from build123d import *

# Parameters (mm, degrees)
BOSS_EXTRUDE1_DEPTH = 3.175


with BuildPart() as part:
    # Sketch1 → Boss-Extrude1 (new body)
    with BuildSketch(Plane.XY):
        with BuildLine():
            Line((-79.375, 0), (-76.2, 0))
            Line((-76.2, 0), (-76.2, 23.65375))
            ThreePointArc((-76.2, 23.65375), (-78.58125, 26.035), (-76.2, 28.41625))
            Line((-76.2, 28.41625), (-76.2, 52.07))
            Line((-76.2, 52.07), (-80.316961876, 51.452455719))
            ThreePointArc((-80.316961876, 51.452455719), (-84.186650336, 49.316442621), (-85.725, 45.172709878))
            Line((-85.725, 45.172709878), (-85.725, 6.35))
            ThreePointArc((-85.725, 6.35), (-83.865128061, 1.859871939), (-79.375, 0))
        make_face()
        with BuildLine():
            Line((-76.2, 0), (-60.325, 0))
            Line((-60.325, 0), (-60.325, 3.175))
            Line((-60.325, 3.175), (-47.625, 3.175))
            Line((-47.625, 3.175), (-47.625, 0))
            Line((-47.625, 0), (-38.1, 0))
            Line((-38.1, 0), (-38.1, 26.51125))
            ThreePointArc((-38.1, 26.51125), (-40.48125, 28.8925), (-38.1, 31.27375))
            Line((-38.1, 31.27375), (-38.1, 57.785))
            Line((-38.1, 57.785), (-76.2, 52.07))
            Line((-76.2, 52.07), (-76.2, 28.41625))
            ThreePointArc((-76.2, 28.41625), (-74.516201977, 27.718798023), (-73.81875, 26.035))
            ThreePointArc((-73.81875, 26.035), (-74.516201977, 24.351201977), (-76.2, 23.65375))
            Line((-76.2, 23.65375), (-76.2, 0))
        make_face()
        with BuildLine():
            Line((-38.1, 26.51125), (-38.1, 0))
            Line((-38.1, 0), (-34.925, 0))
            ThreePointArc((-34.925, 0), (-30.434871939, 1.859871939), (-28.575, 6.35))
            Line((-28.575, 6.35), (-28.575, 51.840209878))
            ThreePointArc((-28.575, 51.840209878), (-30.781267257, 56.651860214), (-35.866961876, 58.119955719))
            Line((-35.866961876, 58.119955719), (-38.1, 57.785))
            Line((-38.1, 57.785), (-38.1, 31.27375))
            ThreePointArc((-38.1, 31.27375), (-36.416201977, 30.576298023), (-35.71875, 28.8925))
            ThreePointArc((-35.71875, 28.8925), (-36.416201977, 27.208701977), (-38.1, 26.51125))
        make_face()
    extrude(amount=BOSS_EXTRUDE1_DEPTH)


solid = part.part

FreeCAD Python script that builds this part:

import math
import FreeCAD as App
import Part
import Sketcher
Q = App.Units.Quantity

doc = App.newDocument("Part")
params = doc.addObject("Spreadsheet::Sheet", "Params")
for row, (alias, value) in enumerate([
    ("sketch1_radius", "0.25 in"),
    ("sketch1_width", "0.5 in"),
    ("sketch1_radius2", "0.09375 in"),
    ("sketch1_height", "0.125 in"),
    ("pad1_length", "0.125 in"),
], start=1):
    params.set(f"A{row}", alias)
    params.set(f"B{row}", "=" + value)
    params.setAlias(f"B{row}", alias)

body = doc.addObject("PartDesign::Body", "Body")

sketch1 = doc.addObject("Sketcher::SketchObject", "Sketch")
body.addObject(sketch1)
sketch1.AttachmentSupport = (doc.XY_Plane, [""])
sketch1.MapMode = "FlatFace"
sketch1.addGeometry(Part.LineSegment(App.Vector(-79.4, 0, 0), App.Vector(-60.3, 0, 0)), False)
sketch1.addGeometry(Part.LineSegment(App.Vector(-60.3, 0, 0), App.Vector(-60.3, 3.2, 0)), False)
sketch1.addGeometry(Part.LineSegment(App.Vector(-60.3, 3.2, 0), App.Vector(-47.6, 3.2, 0)), False)
sketch1.addGeometry(Part.LineSegment(App.Vector(-47.6, 3.2, 0), App.Vector(-47.6, 0, 0)), False)
sketch1.addGeometry(Part.LineSegment(App.Vector(-47.6, 0, 0), App.Vector(-34.9, 0, 0)), False)
sketch1.addGeometry(Part.ArcOfCircle(Part.Circle(App.Vector(-34.9, 6.3, 0), App.Vector(0, 0, 1), 6.3), math.radians(-90), math.radians(0)), False)
sketch1.addGeometry(Part.LineSegment(App.Vector(-28.6, 6.3, 0), App.Vector(-28.6, 51.8, 0)), False)
sketch1.addGeometry(Part.ArcOfCircle(Part.Circle(App.Vector(-34.9, 51.8, 0), App.Vector(0, 0, 1), 6.3), math.radians(0), math.radians(99)), False)
sketch1.addGeometry(Part.LineSegment(App.Vector(-35.9, 58.1, 0), App.Vector(-38.1, 57.8, 0)), False)
sketch1.addGeometry(Part.LineSegment(App.Vector(-38.1, 57.8, 0), App.Vector(-76.2, 52.1, 0)), False)
sketch1.addGeometry(Part.LineSegment(App.Vector(-76.2, 52.1, 0), App.Vector(-80.3, 51.5, 0)), False)
sketch1.addGeometry(Part.ArcOfCircle(Part.Circle(App.Vector(-79.4, 45.2, 0), App.Vector(0, 0, 1), 6.3), math.radians(99), math.radians(180)), False)
sketch1.addGeometry(Part.LineSegment(App.Vector(-85.7, 45.2, 0), App.Vector(-85.7, 6.3, 0)), False)
sketch1.addGeometry(Part.ArcOfCircle(Part.Circle(App.Vector(-79.4, 6.3, 0), App.Vector(0, 0, 1), 6.3), math.radians(180), math.radians(270)), False)
sketch1.addGeometry(Part.ArcOfCircle(Part.Circle(App.Vector(-38.1, 28.9, 0), App.Vector(0, 0, 1), 2.4), math.radians(90), math.radians(270)), False)
sketch1.addGeometry(Part.ArcOfCircle(Part.Circle(App.Vector(-38.1, 28.9, 0), App.Vector(0, 0, 1), 2.4), math.radians(0), math.radians(90)), False)
sketch1.addGeometry(Part.ArcOfCircle(Part.Circle(App.Vector(-38.1, 28.9, 0), App.Vector(0, 0, 1), 2.4), math.radians(-90), math.radians(0)), False)
sketch1.addGeometry(Part.ArcOfCircle(Part.Circle(App.Vector(-76.2, 26, 0), App.Vector(0, 0, 1), 2.4), math.radians(90), math.radians(270)), False)
sketch1.addGeometry(Part.ArcOfCircle(Part.Circle(App.Vector(-76.2, 26, 0), App.Vector(0, 0, 1), 2.4), math.radians(0), math.radians(90)), False)
sketch1.addGeometry(Part.ArcOfCircle(Part.Circle(App.Vector(-76.2, 26, 0), App.Vector(0, 0, 1), 2.4), math.radians(-90), math.radians(0)), False)
sketch1.addConstraint(Sketcher.Constraint("Coincident", 0, 2, 1, 1))
sketch1.addConstraint(Sketcher.Constraint("Coincident", 1, 2, 2, 1))
sketch1.addConstraint(Sketcher.Constraint("Coincident", 2, 2, 3, 1))
sketch1.addConstraint(Sketcher.Constraint("Coincident", 3, 2, 4, 1))
sketch1.addConstraint(Sketcher.Constraint("Tangent", 4, 2, 5, 1))
sketch1.addConstraint(Sketcher.Constraint("Tangent", 5, 2, 6, 1))
sketch1.addConstraint(Sketcher.Constraint("Tangent", 6, 2, 7, 1))
sketch1.addConstraint(Sketcher.Constraint("Tangent", 7, 2, 8, 1))
sketch1.addConstraint(Sketcher.Constraint("Coincident", 8, 2, 9, 1))
sketch1.addConstraint(Sketcher.Constraint("Coincident", 9, 2, 10, 1))
sketch1.addConstraint(Sketcher.Constraint("Tangent", 10, 2, 11, 1))
sketch1.addConstraint(Sketcher.Constraint("Tangent", 11, 2, 12, 1))
sketch1.addConstraint(Sketcher.Constraint("Tangent", 12, 2, 13, 1))
sketch1.addConstraint(Sketcher.Constraint("Tangent", 13, 2, 0, 1))
sketch1.addConstraint(Sketcher.Constraint("Tangent", 14, 1, 15, 2))
sketch1.addConstraint(Sketcher.Constraint("Tangent", 15, 1, 16, 2))
sketch1.addConstraint(Sketcher.Constraint("Tangent", 16, 1, 14, 2))
sketch1.addConstraint(Sketcher.Constraint("Tangent", 17, 1, 18, 2))
sketch1.addConstraint(Sketcher.Constraint("Tangent", 18, 1, 19, 2))
sketch1.addConstraint(Sketcher.Constraint("Tangent", 19, 1, 17, 2))
sketch1.addConstraint(Sketcher.Constraint("Horizontal", 0))
sketch1.addConstraint(Sketcher.Constraint("Vertical", 1))
sketch1.addConstraint(Sketcher.Constraint("Horizontal", 2))
sketch1.addConstraint(Sketcher.Constraint("Vertical", 3))
sketch1.addConstraint(Sketcher.Constraint("Horizontal", 4))
sketch1.addConstraint(Sketcher.Constraint("Vertical", 6))
sketch1.addConstraint(Sketcher.Constraint("Vertical", 12))
sketch1.addConstraint(Sketcher.Constraint("Equal", 5, 7))
sketch1.addConstraint(Sketcher.Constraint("Equal", 7, 11))
sketch1.addConstraint(Sketcher.Constraint("Equal", 11, 13))
sketch1.addConstraint(Sketcher.Constraint("Equal", 16, 17))
sketch1.addConstraint(Sketcher.Constraint("PointOnObject", 0, 2, -1))
sketch1.addConstraint(Sketcher.Constraint("PointOnObject", 3, 2, -1))
sketch1.addConstraint(Sketcher.Constraint("Parallel", 8, 9))
sketch1.addConstraint(Sketcher.Constraint("Parallel", 9, 10))
sketch1.addConstraint(Sketcher.Constraint("Horizontal", 16, 3, 15, 1))
sketch1.addConstraint(Sketcher.Constraint("Horizontal", 19, 3, 18, 1))
sketch1.addConstraint(Sketcher.Constraint("Vertical", 16, 3, 8, 2))
sketch1.addConstraint(Sketcher.Constraint("Vertical", 19, 3, 9, 2))
sketch1.addConstraint(Sketcher.Constraint("Vertical", 8, 2, 14, 1))
sketch1.addConstraint(Sketcher.Constraint("Vertical", 14, 1, 16, 1))
sketch1.addConstraint(Sketcher.Constraint("Vertical", 9, 2, 17, 1))
sketch1.addConstraint(Sketcher.Constraint("Vertical", 17, 1, 19, 1))
sketch1.addConstraint(Sketcher.Constraint("Equal", 2, 4))
sketch1.addConstraint(Sketcher.Constraint("Radius", 5, Q("0.25 in")))
sketch1.addConstraint(Sketcher.Constraint("DistanceX", 2, 1, 2, 2, Q("0.5 in")))
sketch1.addConstraint(Sketcher.Constraint("DistanceX", 17, 3, -1, 1, Q("3 in")))
sketch1.addConstraint(Sketcher.Constraint("Radius", 14, Q("0.09375 in")))
sketch1.addConstraint(Sketcher.Constraint("DistanceX", 12, 2, 1, 2, Q("1 in")))
sketch1.addConstraint(Sketcher.Constraint("DistanceX", 14, 3, -1, 1, Q("1.5 in")))
sketch1.addConstraint(Sketcher.Constraint("DistanceY", 1, 2, 19, 3, Q("0.9 in")))
sketch1.addConstraint(Sketcher.Constraint("DistanceY", 1, 1, 1, 2, Q("0.125 in")))
sketch1.addConstraint(Sketcher.Constraint("DistanceY", -1, 1, 9, 2, Q("2.05 in")))
sketch1.addConstraint(Sketcher.Constraint("DistanceX", 5, 3, -1, 1, Q("1.375 in")))
sketch1.addConstraint(Sketcher.Constraint("DistanceY", -1, 1, 8, 2, Q("2.275 in")))
sketch1.addConstraint(Sketcher.Constraint("DistanceY", -1, 1, 14, 3, Q("1.1375 in")))
sketch1.setExpression("Constraints[44]", "Params.sketch1_radius")
sketch1.setExpression("Constraints[45]", "Params.sketch1_width")
sketch1.setExpression("Constraints[47]", "Params.sketch1_radius2")
sketch1.setExpression("Constraints[51]", "Params.sketch1_height")
pad1 = doc.addObject("PartDesign::Pad", "Pad")
body.addObject(pad1)
pad1.Profile = sketch1
pad1.setExpression("Length", "Params.pad1_length")

doc.recompute()
